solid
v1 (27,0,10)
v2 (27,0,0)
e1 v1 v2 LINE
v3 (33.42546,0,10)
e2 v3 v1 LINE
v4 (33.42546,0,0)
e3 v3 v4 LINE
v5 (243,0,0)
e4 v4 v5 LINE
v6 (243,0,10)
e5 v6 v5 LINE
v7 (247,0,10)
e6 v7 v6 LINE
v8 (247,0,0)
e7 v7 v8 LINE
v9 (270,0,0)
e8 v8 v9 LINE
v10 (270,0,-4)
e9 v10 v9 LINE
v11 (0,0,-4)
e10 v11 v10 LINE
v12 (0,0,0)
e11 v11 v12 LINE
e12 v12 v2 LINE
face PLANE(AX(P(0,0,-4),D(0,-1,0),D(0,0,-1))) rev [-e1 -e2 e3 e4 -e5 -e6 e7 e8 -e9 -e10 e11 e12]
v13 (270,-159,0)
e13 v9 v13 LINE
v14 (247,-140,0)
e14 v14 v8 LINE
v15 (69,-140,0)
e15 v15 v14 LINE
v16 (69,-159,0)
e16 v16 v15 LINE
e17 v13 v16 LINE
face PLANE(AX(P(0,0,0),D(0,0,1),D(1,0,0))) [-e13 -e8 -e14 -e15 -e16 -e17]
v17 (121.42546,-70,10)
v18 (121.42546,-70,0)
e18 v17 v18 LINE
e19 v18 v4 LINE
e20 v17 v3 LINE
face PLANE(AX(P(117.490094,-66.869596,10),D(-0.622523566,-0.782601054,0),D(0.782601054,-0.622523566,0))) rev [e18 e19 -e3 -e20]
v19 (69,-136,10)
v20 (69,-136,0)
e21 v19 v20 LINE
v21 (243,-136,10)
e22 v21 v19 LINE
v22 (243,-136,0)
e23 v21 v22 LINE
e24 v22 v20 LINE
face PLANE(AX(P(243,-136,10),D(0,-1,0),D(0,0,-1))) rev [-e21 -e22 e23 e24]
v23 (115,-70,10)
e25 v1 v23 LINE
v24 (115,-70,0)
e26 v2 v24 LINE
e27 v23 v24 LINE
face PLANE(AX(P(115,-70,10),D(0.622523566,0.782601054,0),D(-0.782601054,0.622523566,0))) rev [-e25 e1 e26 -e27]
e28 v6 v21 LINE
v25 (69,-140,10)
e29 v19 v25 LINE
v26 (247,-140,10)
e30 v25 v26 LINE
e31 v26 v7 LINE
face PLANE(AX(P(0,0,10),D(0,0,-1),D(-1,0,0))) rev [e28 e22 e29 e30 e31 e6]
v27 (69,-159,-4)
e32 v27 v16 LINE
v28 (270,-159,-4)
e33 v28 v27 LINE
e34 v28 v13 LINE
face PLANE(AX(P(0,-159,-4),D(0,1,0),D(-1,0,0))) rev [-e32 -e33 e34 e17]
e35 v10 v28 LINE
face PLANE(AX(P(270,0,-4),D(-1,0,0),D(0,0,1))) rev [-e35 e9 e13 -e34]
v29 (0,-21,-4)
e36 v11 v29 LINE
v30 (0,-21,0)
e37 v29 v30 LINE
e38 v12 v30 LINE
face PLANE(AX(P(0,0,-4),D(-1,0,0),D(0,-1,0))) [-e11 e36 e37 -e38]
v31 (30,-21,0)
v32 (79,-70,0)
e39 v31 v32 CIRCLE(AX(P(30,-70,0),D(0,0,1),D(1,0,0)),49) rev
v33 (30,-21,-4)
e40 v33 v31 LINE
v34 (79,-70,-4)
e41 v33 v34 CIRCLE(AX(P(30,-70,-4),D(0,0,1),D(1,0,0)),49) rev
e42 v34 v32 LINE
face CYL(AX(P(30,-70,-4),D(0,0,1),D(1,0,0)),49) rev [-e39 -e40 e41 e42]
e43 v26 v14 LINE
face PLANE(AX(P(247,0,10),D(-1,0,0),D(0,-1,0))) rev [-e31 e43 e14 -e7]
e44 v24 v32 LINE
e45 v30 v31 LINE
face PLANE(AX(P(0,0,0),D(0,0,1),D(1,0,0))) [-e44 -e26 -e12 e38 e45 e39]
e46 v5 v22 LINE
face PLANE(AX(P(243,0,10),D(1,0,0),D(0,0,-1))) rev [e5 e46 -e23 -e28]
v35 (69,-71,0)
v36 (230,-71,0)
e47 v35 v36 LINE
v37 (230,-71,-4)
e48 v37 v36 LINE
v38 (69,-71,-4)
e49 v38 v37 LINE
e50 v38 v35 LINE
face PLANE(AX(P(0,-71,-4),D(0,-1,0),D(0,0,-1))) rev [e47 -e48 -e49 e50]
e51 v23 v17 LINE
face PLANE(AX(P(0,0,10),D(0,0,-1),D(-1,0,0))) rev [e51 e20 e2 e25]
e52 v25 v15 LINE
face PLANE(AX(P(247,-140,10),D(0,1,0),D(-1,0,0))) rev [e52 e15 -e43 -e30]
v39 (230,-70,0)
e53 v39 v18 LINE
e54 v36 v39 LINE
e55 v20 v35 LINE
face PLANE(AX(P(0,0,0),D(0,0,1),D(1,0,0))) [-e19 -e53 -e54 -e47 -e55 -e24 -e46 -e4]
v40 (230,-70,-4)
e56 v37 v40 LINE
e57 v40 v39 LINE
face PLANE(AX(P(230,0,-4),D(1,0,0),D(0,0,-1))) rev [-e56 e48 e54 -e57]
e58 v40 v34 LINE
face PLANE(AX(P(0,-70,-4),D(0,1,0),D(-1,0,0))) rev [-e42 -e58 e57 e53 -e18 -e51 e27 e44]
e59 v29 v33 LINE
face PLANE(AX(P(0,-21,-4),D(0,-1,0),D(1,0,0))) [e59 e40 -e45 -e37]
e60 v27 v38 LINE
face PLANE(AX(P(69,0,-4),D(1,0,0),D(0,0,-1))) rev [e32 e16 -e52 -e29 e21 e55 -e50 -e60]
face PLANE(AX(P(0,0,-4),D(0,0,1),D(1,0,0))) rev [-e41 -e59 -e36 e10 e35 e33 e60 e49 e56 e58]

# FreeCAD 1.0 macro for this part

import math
import FreeCAD as App
import Part
import Sketcher

doc = App.newDocument("Part")
body = doc.addObject("PartDesign::Body", "Body")

# Sketch on XY plane
sketch1 = body.newObject("Sketcher::SketchObject", "Sketch")
sketch1.AttachmentSupport = (doc.getObject("XY_Plane"), [""])
sketch1.MapMode = "FlatFace"
sketch1.addGeometry(Part.LineSegment(App.Vector(270, 0, 0), App.Vector(0, 0, 0)), False)
sketch1.addGeometry(Part.LineSegment(App.Vector(0, 0, 0), App.Vector(0, -21, 0)), False)
sketch1.addGeometry(Part.LineSegment(App.Vector(0, -21, 0), App.Vector(30, -21, 0)), False)
sketch1.addGeometry(Part.ArcOfCircle(Part.Circle(App.Vector(30, -70, 0), App.Vector(0, 0, 1), 49), math.radians(0), math.radians(90)), False)
sketch1.addGeometry(Part.LineSegment(App.Vector(79, -70, 0), App.Vector(230, -70, 0)), False)
sketch1.addGeometry(Part.LineSegment(App.Vector(230, -70, 0), App.Vector(230, -71, 0)), False)
sketch1.addGeometry(Part.LineSegment(App.Vector(230, -71, 0), App.Vector(69, -71, 0)), False)
sketch1.addGeometry(Part.LineSegment(App.Vector(69, -71, 0), App.Vector(69, -159, 0)), False)
sketch1.addGeometry(Part.LineSegment(App.Vector(69, -159, 0), App.Vector(270, -159, 0)), False)
sketch1.addGeometry(Part.LineSegment(App.Vector(270, -159, 0), App.Vector(270, 0, 0)), False)
sketch1.addConstraint(Sketcher.Constraint("Coincident", 0, 2, 1, 1))
sketch1.addConstraint(Sketcher.Constraint("Coincident", 1, 2, 2, 1))
sketch1.addConstraint(Sketcher.Constraint("Tangent", 2, 2, 3, 2))
sketch1.addConstraint(Sketcher.Constraint("Coincident", 3, 1, 4, 1))
sketch1.addConstraint(Sketcher.Constraint("Coincident", 4, 2, 5, 1))
sketch1.addConstraint(Sketcher.Constraint("Coincident", 5, 2, 6, 1))
sketch1.addConstraint(Sketcher.Constraint("Coincident", 6, 2, 7, 1))
sketch1.addConstraint(Sketcher.Constraint("Coincident", 7, 2, 8, 1))
sketch1.addConstraint(Sketcher.Constraint("Coincident", 8, 2, 9, 1))
sketch1.addConstraint(Sketcher.Constraint("Coincident", 9, 2, 0, 1))
sketch1.addConstraint(Sketcher.Constraint("Horizontal", 0))
sketch1.addConstraint(Sketcher.Constraint("Vertical", 1))
sketch1.addConstraint(Sketcher.Constraint("Horizontal", 2))
sketch1.addConstraint(Sketcher.Constraint("Horizontal", 4))
sketch1.addConstraint(Sketcher.Constraint("Vertical", 5))
sketch1.addConstraint(Sketcher.Constraint("Horizontal", 6))
sketch1.addConstraint(Sketcher.Constraint("Vertical", 7))
sketch1.addConstraint(Sketcher.Constraint("Horizontal", 8))
sketch1.addConstraint(Sketcher.Constraint("Vertical", 9))
sketch1.addConstraint(Sketcher.Constraint("Coincident", 0, 2, -1, 1))
sketch1.addConstraint(Sketcher.Constraint("Radius", 3, 49.0))
sketch1.addConstraint(Sketcher.Constraint("DistanceX", 0, 2, 0, 1, 270.0))
sketch1.addConstraint(Sketcher.Constraint("DistanceX", 2, 1, 2, 2, 30.0))
sketch1.addConstraint(Sketcher.Constraint("DistanceX", 4, 1, 4, 2, 151.0))
sketch1.addConstraint(Sketcher.Constraint("DistanceX", 6, 2, 6, 1, 161.0))
sketch1.addConstraint(Sketcher.Constraint("DistanceY", 1, 2, 1, 1, 21.0))
sketch1.addConstraint(Sketcher.Constraint("DistanceY", 5, 2, 5, 1, 1.0))
sketch1.addConstraint(Sketcher.Constraint("DistanceY", 7, 2, 7, 1, 88.0))
sketch1.addConstraint(Sketcher.Constraint("DistanceY", 9, 1, 9, 2, 159.0))
pad1 = body.newObject("PartDesign::Pad", "Pad")
pad1.Profile = sketch1
pad1.Length = 4
pad1.Reversed = True

# Sketch on XY plane
sketch2 = body.newObject("Sketcher::SketchObject", "Sketch001")
sketch2.AttachmentSupport = (doc.getObject("XY_Plane"), [""])
sketch2.MapMode = "FlatFace"
sketch2.addGeometry(Part.LineSegment(App.Vector(247, -140, 0), App.Vector(247, 0, 0)), False)
sketch2.addGeometry(Part.LineSegment(App.Vector(247, 0, 0), App.Vector(243, 0, 0)), False)
sketch2.addGeometry(Part.LineSegment(App.Vector(243, 0, 0), App.Vector(243, -136, 0)), False)
sketch2.addGeometry(Part.LineSegment(App.Vector(243, -136, 0), App.Vector(69, -136, 0)), False)
sketch2.addGeometry(Part.LineSegment(App.Vector(69, -136, 0), App.Vector(69, -140, 0)), False)
sketch2.addGeometry(Part.LineSegment(App.Vector(69, -140, 0), App.Vector(247, -140, 0)), False)
sketch2.addGeometry(Part.LineSegment(App.Vector(27, 0, 0), App.Vector(115, -70, 0)), False)
sketch2.addGeometry(Part.LineSegment(App.Vector(115, -70, 0), App.Vector(121.4, -70, 0)), False)
sketch2.addGeometry(Part.LineSegment(App.Vector(121.4, -70, 0), App.Vector(117.5, -66.9, 0)), False)
sketch2.addGeometry(Part.LineSegment(App.Vector(117.5, -66.9, 0), App.Vector(33.4, 0, 0)), False)
sketch2.addGeometry(Part.LineSegment(App.Vector(33.4, 0, 0), App.Vector(27, 0, 0)), False)
sketch2.addConstraint(Sketcher.Constraint("Coincident", 0, 2, 1, 1))
sketch2.addConstraint(Sketcher.Constraint("Coincident", 1, 2, 2, 1))
sketch2.addConstraint(Sketcher.Constraint("Coincident", 2, 2, 3, 1))
sketch2.addConstraint(Sketcher.Constraint("Coincident", 3, 2, 4, 1))
sketch2.addConstraint(Sketcher.Constraint("Coincident", 4, 2, 5, 1))
sketch2.addConstraint(Sketcher.Constraint("Coincident", 5, 2, 0, 1))
sketch2.addConstraint(Sketcher.Constraint("Coincident", 6, 2, 7, 1))
sketch2.addConstraint(Sketcher.Constraint("Coincident", 7, 2, 8, 1))
sketch2.addConstraint(Sketcher.Constraint("Coincident", 8, 2, 9, 1))
sketch2.addConstraint(Sketcher.Constraint("Coincident", 9, 2, 10, 1))
sketch2.addConstraint(Sketcher.Constraint("Coincident", 10, 2, 6, 1))
sketch2.addConstraint(Sketcher.Constraint("Vertical", 0))
sketch2.addConstraint(Sketcher.Constraint("Horizontal", 1))
sketch2.addConstraint(Sketcher.Constraint("Vertical", 2))
sketch2.addConstraint(Sketcher.Constraint("Horizontal", 3))
sketch2.addConstraint(Sketcher.Constraint("Vertical", 4))
sketch2.addConstraint(Sketcher.Constraint("Horizontal", 5))
sketch2.addConstraint(Sketcher.Constraint("Horizontal", 7))
sketch2.addConstraint(Sketcher.Constraint("Horizontal", 10))
sketch2.addConstraint(Sketcher.Constraint("PointOnObject", 0, 2, -1))
sketch2.addConstraint(Sketcher.Constraint("PointOnObject", 9, 2, -1))
sketch2.addConstraint(Sketcher.Constraint("Parallel", 6, 8))
sketch2.addConstraint(Sketcher.Constraint("Parallel", 8, 9))
sketch2.addConstraint(Sketcher.Constraint("Equal", 1, 4))
sketch2.addConstraint(Sketcher.Constraint("DistanceX", 1, 2, 1, 1, 4.0))
sketch2.addConstraint(Sketcher.Constraint("DistanceX", 3, 2, 3, 1, 174.0))
sketch2.addConstraint(Sketcher.Constraint("DistanceY", 0, 1, 0, 2, 140.0))
sketch2.addConstraint(Sketcher.Constraint("DistanceX", -1, 1, 0, 2, 247.0))
sketch2.addConstraint(Sketcher.Constraint("DistanceX", -1, 1, 6, 2, 115.0))
sketch2.addConstraint(Sketcher.Constraint("DistanceY", 6, 2, -1, 1, 70.0))
sketch2.addConstraint(Sketcher.Constraint("DistanceX", -1, 1, 10, 2, 27.0))
sketch2.addConstraint(Sketcher.Constraint("DistanceX", 7, 1, 7, 2, 6.42546))
sketch2.addConstraint(Sketcher.Constraint("Distance", 8, 5.028571))
pad2 = body.newObject("PartDesign::Pad", "Pad001")
pad2.Profile = sketch2
pad2.Length = 10

doc.recompute()
